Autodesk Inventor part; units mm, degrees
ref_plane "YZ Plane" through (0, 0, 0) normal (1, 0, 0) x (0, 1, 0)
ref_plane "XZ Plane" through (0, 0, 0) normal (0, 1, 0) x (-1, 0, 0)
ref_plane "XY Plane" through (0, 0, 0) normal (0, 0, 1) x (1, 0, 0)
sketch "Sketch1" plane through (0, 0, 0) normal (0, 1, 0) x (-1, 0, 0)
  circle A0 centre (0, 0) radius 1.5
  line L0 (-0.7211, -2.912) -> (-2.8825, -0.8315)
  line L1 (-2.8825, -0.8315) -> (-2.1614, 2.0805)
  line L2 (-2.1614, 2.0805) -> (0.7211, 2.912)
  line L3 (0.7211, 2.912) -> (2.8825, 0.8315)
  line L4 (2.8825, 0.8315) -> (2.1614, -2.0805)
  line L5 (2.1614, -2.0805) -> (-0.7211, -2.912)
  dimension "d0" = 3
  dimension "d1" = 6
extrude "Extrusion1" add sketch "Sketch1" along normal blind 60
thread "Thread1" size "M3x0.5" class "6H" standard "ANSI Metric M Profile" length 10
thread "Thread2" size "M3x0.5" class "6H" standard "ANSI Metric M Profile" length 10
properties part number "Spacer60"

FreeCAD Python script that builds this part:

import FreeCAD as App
import Part
import Sketcher

V = App.Vector
Q = App.Units.Quantity


def add_polygon(sketch, points):
    """Adds a closed chain of lines whose ends are joined by coincident constraints."""
    first, n = sketch.GeometryCount, len(points)
    for a, b in zip(points, points[1:] + points[:1]):
        sketch.addGeometry(Part.LineSegment(App.Vector(*a, 0), App.Vector(*b, 0)), False)
    for i in range(n):
        sketch.addConstraint(Sketcher.Constraint("Coincident", first + i, 2, first + (i + 1) % n, 1))

doc = App.newDocument("Part")
body = doc.addObject("PartDesign::Body", "Body")

sketch1 = body.newObject("Sketcher::SketchObject", "Sketch")
sketch1.AttachmentSupport = (doc.getObject("XZ_Plane"), [""])
sketch1.MapMode = "FlatFace"
add_polygon(sketch1, [(2.9, -0.8), (0.7, -2.9), (-2.2, -2.1), (-2.9, 0.8), (-0.7, 2.9), (2.2, 2.1)])
sketch1.addGeometry(Part.Circle(V(0, 0, 0), V(0, 0, 1), 1.5), False)
sketch1.addConstraint([
    Sketcher.Constraint("Coincident", 6, 3, -1, 1),
    Sketcher.Constraint("Symmetric", 0, 2, 3, 2, -1, 1),
    Sketcher.Constraint("Symmetric", 1, 2, 4, 2, -1, 1),
    Sketcher.Constraint("Symmetric", 2, 2, 5, 2, -1, 1),
    Sketcher.Constraint("Equal", 0, 1),
    Sketcher.Constraint("Equal", 1, 2),
    Sketcher.Constraint("Diameter", 6, Q("3 mm")),
    Sketcher.Constraint("Distance", 0, Q("3 mm")),
    Sketcher.Constraint("Angle", 1, Q("163.909 deg")),
    Sketcher.Constraint("DistanceX", -1, 1, 0, 2, Q("0.721 mm")),
    Sketcher.Constraint("DistanceY", 0, 2, -1, 1, Q("2.912 mm")),
])
pad1 = body.newObject("PartDesign::Pad", "Pad")
pad1.Profile = sketch1
pad1.Length = 60
pad1.Reversed = True

doc.recompute()
